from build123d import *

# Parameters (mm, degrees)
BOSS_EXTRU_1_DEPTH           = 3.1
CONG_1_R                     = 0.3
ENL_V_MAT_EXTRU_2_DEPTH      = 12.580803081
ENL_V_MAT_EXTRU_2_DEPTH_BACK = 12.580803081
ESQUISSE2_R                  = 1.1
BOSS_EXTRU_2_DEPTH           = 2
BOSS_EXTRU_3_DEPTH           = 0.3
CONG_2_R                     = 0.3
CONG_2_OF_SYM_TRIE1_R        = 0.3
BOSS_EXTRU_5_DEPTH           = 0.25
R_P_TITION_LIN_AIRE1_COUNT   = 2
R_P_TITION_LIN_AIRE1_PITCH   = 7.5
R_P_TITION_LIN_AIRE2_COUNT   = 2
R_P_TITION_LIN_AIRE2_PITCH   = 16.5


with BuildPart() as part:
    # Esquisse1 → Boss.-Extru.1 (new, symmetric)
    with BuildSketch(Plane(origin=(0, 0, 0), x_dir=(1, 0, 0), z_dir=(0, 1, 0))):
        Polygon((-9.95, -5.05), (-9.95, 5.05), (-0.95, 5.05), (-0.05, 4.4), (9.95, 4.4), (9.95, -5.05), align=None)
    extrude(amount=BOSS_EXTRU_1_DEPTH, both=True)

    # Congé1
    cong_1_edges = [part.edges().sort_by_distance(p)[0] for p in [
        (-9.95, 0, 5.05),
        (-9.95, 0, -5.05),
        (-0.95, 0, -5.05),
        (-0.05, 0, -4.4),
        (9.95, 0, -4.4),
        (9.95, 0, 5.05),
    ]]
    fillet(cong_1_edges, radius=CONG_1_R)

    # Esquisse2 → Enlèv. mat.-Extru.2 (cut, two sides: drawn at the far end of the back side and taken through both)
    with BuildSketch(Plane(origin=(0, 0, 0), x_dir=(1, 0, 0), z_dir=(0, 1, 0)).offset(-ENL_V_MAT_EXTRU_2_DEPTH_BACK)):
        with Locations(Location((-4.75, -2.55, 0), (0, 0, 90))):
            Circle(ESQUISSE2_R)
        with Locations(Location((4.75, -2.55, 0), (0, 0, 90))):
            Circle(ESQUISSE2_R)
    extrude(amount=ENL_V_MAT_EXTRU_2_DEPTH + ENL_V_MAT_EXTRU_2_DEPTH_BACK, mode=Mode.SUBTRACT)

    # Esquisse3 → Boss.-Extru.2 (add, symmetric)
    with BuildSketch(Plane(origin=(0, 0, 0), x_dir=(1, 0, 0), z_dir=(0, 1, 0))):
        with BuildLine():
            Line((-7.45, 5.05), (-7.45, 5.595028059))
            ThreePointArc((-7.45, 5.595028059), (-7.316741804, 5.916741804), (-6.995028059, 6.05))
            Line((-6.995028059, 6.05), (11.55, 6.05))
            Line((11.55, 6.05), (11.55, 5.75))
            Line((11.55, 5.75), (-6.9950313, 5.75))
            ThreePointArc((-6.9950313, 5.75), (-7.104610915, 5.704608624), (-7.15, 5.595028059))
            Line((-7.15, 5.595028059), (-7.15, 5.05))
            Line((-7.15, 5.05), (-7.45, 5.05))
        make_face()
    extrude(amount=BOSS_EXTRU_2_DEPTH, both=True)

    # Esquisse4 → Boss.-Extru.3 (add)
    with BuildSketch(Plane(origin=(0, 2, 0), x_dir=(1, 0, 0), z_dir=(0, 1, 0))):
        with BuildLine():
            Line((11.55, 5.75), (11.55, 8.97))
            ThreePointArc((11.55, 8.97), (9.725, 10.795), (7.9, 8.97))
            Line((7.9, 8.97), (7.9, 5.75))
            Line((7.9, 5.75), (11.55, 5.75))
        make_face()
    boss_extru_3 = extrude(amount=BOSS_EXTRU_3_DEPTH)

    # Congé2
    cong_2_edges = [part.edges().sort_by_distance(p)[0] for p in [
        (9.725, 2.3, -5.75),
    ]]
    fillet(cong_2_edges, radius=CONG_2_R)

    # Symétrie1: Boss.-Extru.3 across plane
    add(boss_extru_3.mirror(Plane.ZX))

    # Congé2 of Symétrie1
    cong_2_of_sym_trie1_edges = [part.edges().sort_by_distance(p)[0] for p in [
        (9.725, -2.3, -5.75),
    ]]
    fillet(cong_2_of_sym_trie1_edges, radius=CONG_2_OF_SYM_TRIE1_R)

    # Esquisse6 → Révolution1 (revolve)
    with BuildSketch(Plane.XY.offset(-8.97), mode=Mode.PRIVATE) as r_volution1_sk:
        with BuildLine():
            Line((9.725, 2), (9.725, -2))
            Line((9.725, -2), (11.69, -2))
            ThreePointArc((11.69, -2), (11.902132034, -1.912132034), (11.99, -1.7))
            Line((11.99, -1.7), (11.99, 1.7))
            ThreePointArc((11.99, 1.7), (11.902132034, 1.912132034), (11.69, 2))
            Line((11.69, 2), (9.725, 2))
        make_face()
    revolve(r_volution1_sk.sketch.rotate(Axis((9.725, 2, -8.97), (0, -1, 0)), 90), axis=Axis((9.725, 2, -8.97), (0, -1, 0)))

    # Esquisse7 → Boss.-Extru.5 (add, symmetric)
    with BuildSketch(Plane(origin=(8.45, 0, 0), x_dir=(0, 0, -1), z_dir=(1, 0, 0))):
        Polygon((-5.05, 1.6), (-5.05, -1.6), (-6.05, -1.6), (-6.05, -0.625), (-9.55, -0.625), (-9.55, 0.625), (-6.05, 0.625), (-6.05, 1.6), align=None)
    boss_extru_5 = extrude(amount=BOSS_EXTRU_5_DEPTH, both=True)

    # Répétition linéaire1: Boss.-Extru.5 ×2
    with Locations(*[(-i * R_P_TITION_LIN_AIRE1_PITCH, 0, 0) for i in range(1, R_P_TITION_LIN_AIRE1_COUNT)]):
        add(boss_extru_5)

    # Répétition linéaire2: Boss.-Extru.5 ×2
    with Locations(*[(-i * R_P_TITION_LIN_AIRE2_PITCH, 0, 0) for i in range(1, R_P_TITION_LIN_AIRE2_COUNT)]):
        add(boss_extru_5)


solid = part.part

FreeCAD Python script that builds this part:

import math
import FreeCAD as App
import Part
import Sketcher
Q = App.Units.Quantity


def edges_at(feature, points):
    """Names of the edges that pass closest to the given points."""
    edges = feature.Shape.Edges
    near = lambda p: min(range(len(edges)), key=lambda i: edges[i].distToShape(Part.Vertex(*p))[0])
    return sorted({f"Edge{near(p) + 1}" for p in points})

doc = App.newDocument("Part")
params = doc.addObject("Spreadsheet::Sheet", "Params")
for row, (alias, value) in enumerate([
    ("sketch1_width", "10 mm"),
    ("sketch1_width2", "9 mm"),
    ("sketch1_width3", "19.9 mm"),
    ("sketch1_height", "10.1 mm"),
    ("sketch1_height2", "9.45 mm"),
    ("pad1_length", "6.2 mm"),
    ("fillet_radius", "0.3 mm"),
    ("sketch2_diameter", "2.2 mm"),
    ("sketch3_width", "0.3 mm"),
    ("pad2_length", "4 mm"),
    ("sketch4_height", "3.22 mm"),
    ("pad3_length", "0.3 mm"),
    ("fillet2_radius", "0.3 mm"),
    ("fillet3_radius", "0.3 mm"),
    ("sketch5_radius", "0.3 mm"),
    ("sketch5_height", "4 mm"),
    ("revolution_angle", "360 deg"),
    ("sketch6_height", "1 mm"),
    ("sketch6_width", "3.2 mm"),
    ("sketch6_height2", "3.5 mm"),
    ("sketch6_width2", "1.25 mm"),
    ("pad4_length", "0.5 mm"),
    ("linearpattern_pitch", "7.5 mm"),
    ("linearpattern2_pitch", "16.5 mm"),
], start=1):
    params.set(f"A{row}", alias)
    params.set(f"B{row}", "=" + value)
    params.setAlias(f"B{row}", alias)

body = doc.addObject("PartDesign::Body", "Body")

# Sketch on XZ plane
sketch1 = body.newObject("Sketcher::SketchObject", "Sketch")
sketch1.AttachmentSupport = (doc.getObject("XZ_Plane"), [""])
sketch1.MapMode = "FlatFace"
sketch1.addGeometry([
    Part.LineSegment(App.Vector(-9.9, -5, 0), App.Vector(-9.9, 5, 0)),  # 0
    Part.LineSegment(App.Vector(-9.9, 5, 0), App.Vector(9.9, 5, 0)),  # 1
    Part.LineSegment(App.Vector(9.9, 5, 0), App.Vector(9.9, -4.4, 0)),  # 2
    Part.LineSegment(App.Vector(9.9, -4.4, 0), App.Vector(-0.1, -4.4, 0)),  # 3
    Part.LineSegment(App.Vector(-0.1, -4.4, 0), App.Vector(-0.9, -5, 0)),  # 4
    Part.LineSegment(App.Vector(-0.9, -5, 0), App.Vector(-9.9, -5, 0)),  # 5
], False)
sketch1.addConstraint([
    Sketcher.Constraint("Coincident", 0, 2, 1, 1),
    Sketcher.Constraint("Coincident", 1, 2, 2, 1),
    Sketcher.Constraint("Coincident", 2, 2, 3, 1),
    Sketcher.Constraint("Coincident", 3, 2, 4, 1),
    Sketcher.Constraint("Coincident", 4, 2, 5, 1),
    Sketcher.Constraint("Coincident", 5, 2, 0, 1),
    Sketcher.Constraint("Vertical", 0),
    Sketcher.Constraint("Horizontal", 1),
    Sketcher.Constraint("Vertical", 2),
    Sketcher.Constraint("Horizontal", 3),
    Sketcher.Constraint("Horizontal", 5),
    Sketcher.Constraint("Symmetric", 1, 2, 5, 2, -1, 1),
    Sketcher.Constraint("DistanceX", 3, 2, 3, 1, Q("10 mm")),
    Sketcher.Constraint("DistanceX", 5, 2, 5, 1, Q("9 mm")),
    Sketcher.Constraint("DistanceX", 1, 1, 1, 2, Q("19.9 mm")),
    Sketcher.Constraint("DistanceY", 0, 1, 0, 2, Q("10.1 mm")),
    Sketcher.Constraint("DistanceY", 2, 2, 2, 1, Q("9.45 mm")),
])
sketch1.setExpression("Constraints[12]", "Params.sketch1_width")
sketch1.setExpression("Constraints[13]", "Params.sketch1_width2")
sketch1.setExpression("Constraints[14]", "Params.sketch1_width3")
sketch1.setExpression("Constraints[15]", "Params.sketch1_height")
sketch1.setExpression("Constraints[16]", "Params.sketch1_height2")
pad1 = body.newObject("PartDesign::Pad", "Pad")
pad1.Profile = sketch1
pad1.setExpression("Length", "Params.pad1_length")
pad1.Midplane = True
doc.recompute()

fillet = body.newObject("PartDesign::Fillet", "Fillet")
fillet.Base = (pad1, edges_at(pad1, [
    (-9.95, 0, 5.05),
    (-9.95, 0, -5.05),
    (-0.95, 0, -5.05),
    (-0.05, 0, -4.4),
    (9.95, 0, -4.4),
    (9.95, 0, 5.05),
]))
fillet.setExpression("Radius", "Params.fillet_radius")

# Sketch on XZ plane
sketch2 = body.newObject("Sketcher::SketchObject", "Sketch001")
sketch2.AttachmentSupport = (doc.getObject("XZ_Plane"), [""])
sketch2.MapMode = "FlatFace"
sketch2.addGeometry([
    Part.Circle(App.Vector(-4.8, 2.5, 0), App.Vector(0, 0, 1), 1.1),
    Part.Circle(App.Vector(4.8, 2.5, 0), App.Vector(0, 0, 1), 1.1),
], False)
sketch2.addConstraint([
    Sketcher.Constraint("Equal", 0, 1),
    Sketcher.Constraint("Symmetric", 0, 3, 1, 3, -2),
    Sketcher.Constraint("Diameter", 0, Q("2.2 mm")),
    Sketcher.Constraint("DistanceX", 0, 3, 1, 3, Q("9.5 mm")),
    Sketcher.Constraint("DistanceY", -1, 1, 0, 3, Q("2.55 mm")),
])
sketch2.setExpression("Constraints[2]", "Params.sketch2_diameter")
pocket1 = body.newObject("PartDesign::Pocket", "Pocket")
pocket1.Profile = sketch2
pocket1.Type = "ThroughAll"
pocket1.Midplane = True

# Sketch on XZ plane
sketch3 = body.newObject("Sketcher::SketchObject", "Sketch002")
sketch3.AttachmentSupport = (doc.getObject("XZ_Plane"), [""])
sketch3.MapMode = "FlatFace"
sketch3.addGeometry([
    Part.LineSegment(App.Vector(-7.45, -5.6, 0), App.Vector(-7.45, -5.05, 0)),  # 0
    Part.LineSegment(App.Vector(-7.45, -5.05, 0), App.Vector(-7.15, -5.05, 0)),  # 1
    Part.LineSegment(App.Vector(-7.15, -5.05, 0), App.Vector(-7.15, -5.6, 0)),  # 2
    Part.ArcOfCircle(Part.Circle(App.Vector(-7, -5.6, 0), App.Vector(0, 0, 1), 0.15), math.radians(180), math.radians(270)),  # 3
    Part.LineSegment(App.Vector(-7, -5.75, 0), App.Vector(11.55, -5.75, 0)),  # 4
    Part.LineSegment(App.Vector(11.55, -5.75, 0), App.Vector(11.55, -6.05, 0)),  # 5
    Part.LineSegment(App.Vector(11.55, -6.05, 0), App.Vector(-7, -6.05, 0)),  # 6
    Part.ArcOfCircle(Part.Circle(App.Vector(-7, -5.6, 0), App.Vector(0, 0, 1), 0.45), math.radians(180), math.radians(270)),  # 7
], False)
sketch3.addConstraint([
    Sketcher.Constraint("Coincident", 0, 2, 1, 1),
    Sketcher.Constraint("Coincident", 1, 2, 2, 1),
    Sketcher.Constraint("Tangent", 2, 2, 3, 1),
    Sketcher.Constraint("Coincident", 3, 2, 4, 1),
    Sketcher.Constraint("Coincident", 4, 2, 5, 1),
    Sketcher.Constraint("Coincident", 5, 2, 6, 1),
    Sketcher.Constraint("Tangent", 6, 2, 7, 2),
    Sketcher.Constraint("Tangent", 7, 1, 0, 1),
    Sketcher.Constraint("Vertical", 0),
    Sketcher.Constraint("Horizontal", 1),
    Sketcher.Constraint("Vertical", 2),
    Sketcher.Constraint("Horizontal", 4),
    Sketcher.Constraint("Vertical", 5),
    Sketcher.Constraint("Horizontal", 6),
    Sketcher.Constraint("Coincident", 7, 3, 3, 3),
    Sketcher.Constraint("DistanceX", 1, 1, 1, 2, Q("0.3 mm")),
    Sketcher.Constraint("DistanceY", 6, 2, 1, 2, Q("1 mm")),
    Sketcher.Constraint("DistanceX", 2, 2, 4, 2, Q("18.7 mm")),
    Sketcher.Constraint("DistanceX", 0, 2, -1, 1, Q("7.45 mm")),
    Sketcher.Constraint("DistanceY", 0, 2, -1, 1, Q("5.05 mm")),
    Sketcher.Constraint("Radius", 3, Q("0.154972 mm")),
    Sketcher.Constraint("DistanceX", 4, 1, 4, 2, Q("18.545031 mm")),
])
sketch3.setExpression("Constraints[15]", "Params.sketch3_width")
pad2 = body.newObject("PartDesign::Pad", "Pad001")
pad2.Profile = sketch3
pad2.setExpression("Length", "Params.pad2_length")
pad2.Midplane = True

# Sketch on XZ plane
sketch4 = body.newObject("Sketcher::SketchObject", "Sketch003")
sketch4.AttachmentSupport = (doc.getObject("XZ_Plane"), [""])
sketch4.MapMode = "FlatFace"
sketch4.AttachmentOffset = App.Placement(App.Vector(0, 0, -2), App.Rotation())
sketch4.addGeometry([
    Part.LineSegment(App.Vector(11.6, -5.8, 0), App.Vector(11.6, -9, 0)),
    Part.ArcOfCircle(Part.Circle(App.Vector(9.7, -9, 0), App.Vector(0, 0, 1), 1.8), math.radians(180), math.radians(360)),
    Part.LineSegment(App.Vector(7.9, -9, 0), App.Vector(7.9, -5.8, 0)),
    Part.LineSegment(App.Vector(7.9, -5.8, 0), App.Vector(11.6, -5.8, 0)),
], False)
sketch4.addConstraint([
    Sketcher.Constraint("Tangent", 0, 2, 1, 2),
    Sketcher.Constraint("Tangent", 1, 1, 2, 1),
    Sketcher.Constraint("Coincident", 2, 2, 3, 1),
    Sketcher.Constraint("Coincident", 3, 2, 0, 1),
    Sketcher.Constraint("Vertical", 0),
    Sketcher.Constraint("Vertical", 2),
    Sketcher.Constraint("Horizontal", 3),
    Sketcher.Constraint("Radius", 1, Q("1.825 mm")),
    Sketcher.Constraint("DistanceY", 0, 2, 0, 1, Q("3.22 mm")),
    Sketcher.Constraint("DistanceX", -1, 1, 1, 1, Q("7.9 mm")),
    Sketcher.Constraint("DistanceY", 1, 3, -1, 1, Q("8.97 mm")),
])
sketch4.setExpression("Constraints[8]", "Params.sketch4_height")
pad3 = body.newObject("PartDesign::Pad", "Pad002")
pad3.Profile = sketch4
pad3.setExpression("Length", "Params.pad3_length")
pad3.Reversed = True
doc.recompute()

fillet2 = body.newObject("PartDesign::Fillet", "Fillet001")
fillet2.Base = (pad3, edges_at(pad3, [(9.725, 2.3, -5.75)]))
fillet2.setExpression("Radius", "Params.fillet2_radius")
doc.recompute()

mirrored = body.newObject("PartDesign::Mirrored", "Mirrored")
mirrored.Originals = [pad3]
mirrored.MirrorPlane = (doc.getObject("XZ_Plane"), [""])
body.Tip = mirrored
doc.recompute()

fillet3 = body.newObject("PartDesign::Fillet", "Fillet002")
fillet3.Base = (mirrored, edges_at(mirrored, [(9.725, -2.3, -5.75)]))
fillet3.setExpression("Radius", "Params.fillet3_radius")

# Sketch on XY plane
sketch5 = body.newObject("Sketcher::SketchObject", "Sketch004")
sketch5.AttachmentSupport = (doc.getObject("XY_Plane"), [""])
sketch5.MapMode = "FlatFace"
sketch5.AttachmentOffset = App.Placement(App.Vector(0, 0, -8.97), App.Rotation())
sketch5.addGeometry([
    Part.LineSegment(App.Vector(9.72, 2, 0), App.Vector(9.72, -2, 0)),  # 0
    Part.LineSegment(App.Vector(9.72, -2, 0), App.Vector(11.69, -2, 0)),  # 1
    Part.ArcOfCircle(Part.Circle(App.Vector(11.69, -1.7, 0), App.Vector(0, 0, 1), 0.3), math.radians(-90), math.radians(0)),  # 2
    Part.LineSegment(App.Vector(11.99, -1.7, 0), App.Vector(11.99, 1.7, 0)),  # 3
    Part.ArcOfCircle(Part.Circle(App.Vector(11.69, 1.7, 0), App.Vector(0, 0, 1), 0.3), math.radians(0), math.radians(90)),  # 4
    Part.LineSegment(App.Vector(11.69, 2, 0), App.Vector(9.72, 2, 0)),  # 5
], False)
sketch5.addGeometry(Part.LineSegment(App.Vector(9.72, 2, 0), App.Vector(9.72, -2, 0)), True)  # axis
sketch5.addConstraint([
    Sketcher.Constraint("Coincident", 0, 2, 1, 1),
    Sketcher.Constraint("Tangent", 1, 2, 2, 1),
    Sketcher.Constraint("Tangent", 2, 2, 3, 1),
    Sketcher.Constraint("Tangent", 3, 2, 4, 1),
    Sketcher.Constraint("Tangent", 4, 2, 5, 1),
    Sketcher.Constraint("Coincident", 5, 2, 0, 1),
    Sketcher.Constraint("Vertical", 0),
    Sketcher.Constraint("Horizontal", 1),
    Sketcher.Constraint("Vertical", 3),
    Sketcher.Constraint("Horizontal", 5),
    Sketcher.Constraint("Vertical", 6),
    Sketcher.Constraint("Coincident", 6, 1, 5, 2),
    Sketcher.Constraint("Equal", 2, 4),
    Sketcher.Constraint("Horizontal", 1, 2, 6, 2),
    Sketcher.Constraint("Radius", 2, Q("0.3 mm")),
    Sketcher.Constraint("DistanceY", 0, 2, 0, 1, Q("4 mm")),
    Sketcher.Constraint("DistanceY", 0, 2, -1, 1, Q("2 mm")),
    Sketcher.Constraint("DistanceX", 1, 1, 1, 2, Q("1.965 mm")),
    Sketcher.Constraint("DistanceX", -1, 1, 2, 3, Q("11.69 mm")),
])
sketch5.setExpression("Constraints[14]", "Params.sketch5_radius")
sketch5.setExpression("Constraints[15]", "Params.sketch5_height")
revolution = body.newObject("PartDesign::Revolution", "Revolution")
revolution.Profile = sketch5
revolution.ReferenceAxis = (sketch5, ["Axis0"])
revolution.setExpression("Angle", "Params.revolution_angle")

# Sketch on YZ plane
sketch6 = body.newObject("Sketcher::SketchObject", "Sketch005")
sketch6.AttachmentSupport = (doc.getObject("YZ_Plane"), [""])
sketch6.MapMode = "FlatFace"
sketch6.AttachmentOffset = App.Placement(App.Vector(0, 0, 8.45), App.Rotation())
sketch6.addGeometry([
    Part.LineSegment(App.Vector(-1.6, 5, 0), App.Vector(1.6, 5, 0)),  # 0
    Part.LineSegment(App.Vector(1.6, 5, 0), App.Vector(1.6, 6, 0)),  # 1
    Part.LineSegment(App.Vector(1.6, 6, 0), App.Vector(0.6, 6, 0)),  # 2
    Part.LineSegment(App.Vector(0.6, 6, 0), App.Vector(0.6, 9.6, 0)),  # 3
    Part.LineSegment(App.Vector(0.6, 9.6, 0), App.Vector(-0.6, 9.6, 0)),  # 4
    Part.LineSegment(App.Vector(-0.6, 9.6, 0), App.Vector(-0.6, 6, 0)),  # 5
    Part.LineSegment(App.Vector(-0.6, 6, 0), App.Vector(-1.6, 6, 0)),  # 6
    Part.LineSegment(App.Vector(-1.6, 6, 0), App.Vector(-1.6, 5, 0)),  # 7
], False)
sketch6.addConstraint([
    Sketcher.Constraint("Coincident", 0, 2, 1, 1),
    Sketcher.Constraint("Coincident", 1, 2, 2, 1),
    Sketcher.Constraint("Coincident", 2, 2, 3, 1),
    Sketcher.Constraint("Coincident", 3, 2, 4, 1),
    Sketcher.Constraint("Coincident", 4, 2, 5, 1),
    Sketcher.Constraint("Coincident", 5, 2, 6, 1),
    Sketcher.Constraint("Coincident", 6, 2, 7, 1),
    Sketcher.Constraint("Coincident", 7, 2, 0, 1),
    Sketcher.Constraint("Horizontal", 0),
    Sketcher.Constraint("Vertical", 1),
    Sketcher.Constraint("Horizontal", 2),
    Sketcher.Constraint("Vertical", 3),
    Sketcher.Constraint("Horizontal", 4),
    Sketcher.Constraint("Vertical", 5),
    Sketcher.Constraint("Horizontal", 6),
    Sketcher.Constraint("Vertical", 7),
    Sketcher.Constraint("Symmetric", 2, 2, 5, 2, -2),
    Sketcher.Constraint("Equal", 2, 6),
    Sketcher.Constraint("DistanceY", 1, 1, 1, 2, Q("1 mm")),
    Sketcher.Constraint("DistanceX", 0, 1, 0, 2, Q("3.2 mm")),
    Sketcher.Constraint("DistanceY", 3, 1, 3, 2, Q("3.5 mm")),
    Sketcher.Constraint("DistanceX", 4, 2, 4, 1, Q("1.25 mm")),
    Sketcher.Constraint("DistanceY", -1, 1, 0, 2, Q("5.05 mm")),
])
sketch6.setExpression("Constraints[18]", "Params.sketch6_height")
sketch6.setExpression("Constraints[19]", "Params.sketch6_width")
sketch6.setExpression("Constraints[20]", "Params.sketch6_height2")
sketch6.setExpression("Constraints[21]", "Params.sketch6_width2")
pad4 = body.newObject("PartDesign::Pad", "Pad003")
pad4.Profile = sketch6
pad4.setExpression("Length", "Params.pad4_length")
pad4.Midplane = True
doc.recompute()

linearpattern = body.newObject("PartDesign::LinearPattern", "LinearPattern")
linearpattern.Originals = [pad4]
linearpattern.Direction = (doc.getObject("X_Axis"), [""])
linearpattern.Mode = "offset"
linearpattern.setExpression("Offset", "Params.linearpattern_pitch")
linearpattern.Occurrences = 2
linearpattern.Reversed = True
body.Tip = linearpattern
doc.recompute()

linearpattern2 = body.newObject("PartDesign::LinearPattern", "LinearPattern001")
linearpattern2.Originals = [pad4]
linearpattern2.Direction = (doc.getObject("X_Axis"), [""])
linearpattern2.Mode = "offset"
linearpattern2.setExpression("Offset", "Params.linearpattern2_pitch")
linearpattern2.Occurrences = 2
linearpattern2.Reversed = True
body.Tip = linearpattern2

doc.recompute()
